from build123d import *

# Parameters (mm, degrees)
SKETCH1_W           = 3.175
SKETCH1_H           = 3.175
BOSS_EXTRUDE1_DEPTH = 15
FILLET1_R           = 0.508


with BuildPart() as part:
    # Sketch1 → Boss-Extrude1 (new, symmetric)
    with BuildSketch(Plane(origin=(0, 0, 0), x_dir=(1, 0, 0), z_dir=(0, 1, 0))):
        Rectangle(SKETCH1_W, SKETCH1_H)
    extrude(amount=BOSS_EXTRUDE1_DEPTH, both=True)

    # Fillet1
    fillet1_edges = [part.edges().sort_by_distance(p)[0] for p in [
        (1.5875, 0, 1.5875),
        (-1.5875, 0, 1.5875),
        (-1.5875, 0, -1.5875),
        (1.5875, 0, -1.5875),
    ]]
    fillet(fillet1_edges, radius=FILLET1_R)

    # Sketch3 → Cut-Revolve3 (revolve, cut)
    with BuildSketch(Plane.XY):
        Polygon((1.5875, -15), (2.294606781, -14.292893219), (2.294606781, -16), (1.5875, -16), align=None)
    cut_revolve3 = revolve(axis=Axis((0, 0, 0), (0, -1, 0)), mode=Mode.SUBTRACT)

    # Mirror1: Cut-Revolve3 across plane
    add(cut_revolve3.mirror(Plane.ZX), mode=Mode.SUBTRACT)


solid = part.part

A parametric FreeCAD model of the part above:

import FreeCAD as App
import Part
import Sketcher

V = App.Vector
Q = App.Units.Quantity


def edges_at(feature, points):
    """Names of the edges that pass closest to the given points."""
    edges = feature.Shape.Edges
    near = lambda p: min(range(len(edges)), key=lambda i: edges[i].distToShape(Part.Vertex(*p))[0])
    return sorted({f"Edge{near(p) + 1}" for p in points})

doc = App.newDocument("Part")
body = doc.addObject("PartDesign::Body", "Body")

# Sketch on XZ plane
sketch1 = body.newObject("Sketcher::SketchObject", "Sketch")
sketch1.AttachmentSupport = (doc.getObject("XZ_Plane"), [""])
sketch1.MapMode = "FlatFace"
sketch1.addGeometry([
    Part.LineSegment(V(-1.5875, -1.5875, 0), V(-1.5875, 1.5875, 0)),
    Part.LineSegment(V(-1.5875, 1.5875, 0), V(1.5875, 1.5875, 0)),
    Part.LineSegment(V(1.5875, 1.5875, 0), V(1.5875, -1.5875, 0)),
    Part.LineSegment(V(1.5875, -1.5875, 0), V(-1.5875, -1.5875, 0)),
], False)
sketch1.addConstraint([
    Sketcher.Constraint("Coincident", 0, 2, 1, 1),
    Sketcher.Constraint("Coincident", 1, 2, 2, 1),
    Sketcher.Constraint("Coincident", 2, 2, 3, 1),
    Sketcher.Constraint("Coincident", 3, 2, 0, 1),
    Sketcher.Constraint("Vertical", 0),
    Sketcher.Constraint("Horizontal", 1),
    Sketcher.Constraint("Vertical", 2),
    Sketcher.Constraint("Horizontal", 3),
    Sketcher.Constraint("Symmetric", 0, 2, 2, 2, -1, 1),
    Sketcher.Constraint("Equal", 3, 0),
    Sketcher.Constraint("DistanceX", 1, 1, 1, 2, 3.175),
])
pad1 = body.newObject("PartDesign::Pad", "Pad")
pad1.Profile = sketch1
pad1.Length = 30
pad1.Midplane = True
doc.recompute()

fillet = body.newObject("PartDesign::Fillet", "Fillet")
fillet.Base = (pad1, edges_at(pad1, [
    (1.587, 0, 1.587),
    (-1.587, 0, 1.587),
    (-1.587, 0, -1.587),
    (1.587, 0, -1.587),
]))
fillet.Radius = 0.508

# Sketch on XY plane
sketch2 = body.newObject("Sketcher::SketchObject", "Sketch001")
sketch2.AttachmentSupport = (doc.getObject("XY_Plane"), [""])
sketch2.MapMode = "FlatFace"
sketch2.addGeometry([
    Part.LineSegment(V(2.294607, -14.292893, 0), V(1.5875, -15, 0)),
    Part.LineSegment(V(1.5875, -15, 0), V(1.5875, -16, 0)),
    Part.LineSegment(V(1.5875, -16, 0), V(2.294607, -16, 0)),
    Part.LineSegment(V(2.294607, -16, 0), V(2.294607, -14.292893, 0)),
], False)
sketch2.addConstraint([
    Sketcher.Constraint("Coincident", 0, 2, 1, 1),
    Sketcher.Constraint("Coincident", 1, 2, 2, 1),
    Sketcher.Constraint("Coincident", 2, 2, 3, 1),
    Sketcher.Constraint("Coincident", 3, 2, 0, 1),
    Sketcher.Constraint("Vertical", 1),
    Sketcher.Constraint("Horizontal", 2),
    Sketcher.Constraint("Vertical", 3),
    Sketcher.Constraint("DistanceY", 1, 2, 1, 1, 1.0),
    Sketcher.Constraint("Angle", 0, Q("-135 deg")),
    Sketcher.Constraint("Distance", 0, 1.0),
    Sketcher.Constraint("DistanceY", 0, 2, -1, 1, 15.0),
    Sketcher.Constraint("DistanceX", -1, 1, 0, 2, 1.5875),
])
groove = body.newObject("PartDesign::Groove", "Groove")
groove.Profile = sketch2
groove.ReferenceAxis = (sketch2, ["V_Axis"])
groove.Angle = 360
doc.recompute()

mirrored = body.newObject("PartDesign::Mirrored", "Mirrored")
mirrored.Originals = [groove]
mirrored.MirrorPlane = (doc.getObject("XZ_Plane"), [""])
body.Tip = mirrored

doc.recompute()
